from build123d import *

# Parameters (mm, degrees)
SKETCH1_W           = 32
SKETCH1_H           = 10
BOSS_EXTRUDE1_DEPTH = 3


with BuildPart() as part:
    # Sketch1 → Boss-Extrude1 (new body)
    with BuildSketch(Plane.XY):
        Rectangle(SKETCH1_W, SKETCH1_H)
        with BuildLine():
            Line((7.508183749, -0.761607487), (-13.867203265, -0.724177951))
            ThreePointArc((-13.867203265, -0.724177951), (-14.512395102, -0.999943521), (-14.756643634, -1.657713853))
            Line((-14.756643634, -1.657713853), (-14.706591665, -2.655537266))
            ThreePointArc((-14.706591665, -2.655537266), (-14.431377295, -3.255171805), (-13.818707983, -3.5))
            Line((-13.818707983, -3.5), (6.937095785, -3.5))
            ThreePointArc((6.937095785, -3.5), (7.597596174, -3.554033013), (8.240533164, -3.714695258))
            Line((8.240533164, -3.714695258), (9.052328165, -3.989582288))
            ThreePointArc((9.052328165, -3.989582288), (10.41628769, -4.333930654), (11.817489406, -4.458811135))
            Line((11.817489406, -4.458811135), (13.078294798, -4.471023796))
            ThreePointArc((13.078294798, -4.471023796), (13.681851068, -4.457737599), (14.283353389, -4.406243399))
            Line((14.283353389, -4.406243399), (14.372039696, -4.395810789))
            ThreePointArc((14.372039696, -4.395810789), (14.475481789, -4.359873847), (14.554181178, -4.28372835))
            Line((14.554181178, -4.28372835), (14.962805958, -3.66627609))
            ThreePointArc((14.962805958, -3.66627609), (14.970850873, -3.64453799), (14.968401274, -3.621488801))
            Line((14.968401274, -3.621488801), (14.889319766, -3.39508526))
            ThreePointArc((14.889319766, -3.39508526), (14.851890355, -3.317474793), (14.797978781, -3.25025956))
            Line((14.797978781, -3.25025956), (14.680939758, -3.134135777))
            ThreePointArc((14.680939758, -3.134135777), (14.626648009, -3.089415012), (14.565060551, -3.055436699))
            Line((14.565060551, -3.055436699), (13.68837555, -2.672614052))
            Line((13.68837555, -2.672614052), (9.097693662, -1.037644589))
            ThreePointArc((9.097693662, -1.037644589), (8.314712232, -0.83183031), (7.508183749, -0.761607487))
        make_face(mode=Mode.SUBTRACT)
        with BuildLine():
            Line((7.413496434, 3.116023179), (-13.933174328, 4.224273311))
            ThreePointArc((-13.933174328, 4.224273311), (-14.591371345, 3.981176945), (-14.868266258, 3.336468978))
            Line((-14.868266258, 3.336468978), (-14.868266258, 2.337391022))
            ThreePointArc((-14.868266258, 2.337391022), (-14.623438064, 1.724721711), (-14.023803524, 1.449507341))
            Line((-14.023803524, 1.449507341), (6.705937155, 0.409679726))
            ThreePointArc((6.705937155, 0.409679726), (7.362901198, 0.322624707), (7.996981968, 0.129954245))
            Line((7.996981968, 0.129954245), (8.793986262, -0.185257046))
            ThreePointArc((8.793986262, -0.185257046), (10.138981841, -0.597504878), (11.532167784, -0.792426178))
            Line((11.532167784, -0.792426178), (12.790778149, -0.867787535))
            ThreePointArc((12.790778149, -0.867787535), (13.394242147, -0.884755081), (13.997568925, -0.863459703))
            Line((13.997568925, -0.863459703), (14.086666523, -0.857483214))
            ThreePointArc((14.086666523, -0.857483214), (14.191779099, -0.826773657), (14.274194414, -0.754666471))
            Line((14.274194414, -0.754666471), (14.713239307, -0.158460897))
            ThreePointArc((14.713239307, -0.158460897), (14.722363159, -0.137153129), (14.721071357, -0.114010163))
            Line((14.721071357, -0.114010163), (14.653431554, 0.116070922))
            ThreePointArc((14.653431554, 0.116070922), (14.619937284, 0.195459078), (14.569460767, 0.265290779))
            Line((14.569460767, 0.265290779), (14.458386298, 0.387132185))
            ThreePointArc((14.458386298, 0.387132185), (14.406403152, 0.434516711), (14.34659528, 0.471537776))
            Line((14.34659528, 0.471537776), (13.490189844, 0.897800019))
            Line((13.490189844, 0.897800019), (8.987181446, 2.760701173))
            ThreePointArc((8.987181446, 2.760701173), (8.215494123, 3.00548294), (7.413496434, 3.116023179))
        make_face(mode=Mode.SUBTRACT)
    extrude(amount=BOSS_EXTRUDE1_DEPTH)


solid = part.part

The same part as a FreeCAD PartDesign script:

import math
import FreeCAD as App
import Part
import Sketcher
Q = App.Units.Quantity

doc = App.newDocument("Part")
params = doc.addObject("Spreadsheet::Sheet", "Params")
for row, (alias, value) in enumerate([
    ("sketch1_radius", "0.01 in"),
    ("sketch1_radius2", "0.35 in"),
    ("sketch1_radius3", "0.16 in"),
    ("sketch1_radius4", "0.01 in"),
    ("sketch1_radius5", "0.35 in"),
    ("pad1_length", "3 mm"),
], start=1):
    params.set(f"A{row}", alias)
    params.set(f"B{row}", "=" + value)
    params.setAlias(f"B{row}", alias)

body = doc.addObject("PartDesign::Body", "Body")

sketch1 = body.newObject("Sketcher::SketchObject", "Sketch")
sketch1.AttachmentSupport = (doc.getObject("XY_Plane"), [""])
sketch1.MapMode = "FlatFace"
sketch1.addGeometry([
    Part.LineSegment(App.Vector(-16, 5, 0), App.Vector(-16, -5, 0)),
    Part.LineSegment(App.Vector(-16, -5, 0), App.Vector(16, -5, 0)),
    Part.LineSegment(App.Vector(16, -5, 0), App.Vector(16, 5, 0)),
    Part.LineSegment(App.Vector(16, 5, 0), App.Vector(-16, 5, 0)),
    Part.LineSegment(App.Vector(-13.867203, -0.724178, 0), App.Vector(7.508184, -0.761607, 0)),
    Part.ArcOfCircle(Part.Circle(App.Vector(7.499844, -5.5241, 0), App.Vector(0, 0, 1), 4.7625), math.radians(70.396664), math.radians(89.899672)),
    Part.LineSegment(App.Vector(9.097694, -1.037645, 0), App.Vector(13.688376, -2.672614, 0)),
    Part.LineSegment(App.Vector(13.688376, -2.672614, 0), App.Vector(14.565061, -3.055437, 0)),
    Part.ArcOfCircle(Part.Circle(App.Vector(14.412592, -3.404599, 0), App.Vector(0, 0, 1), 0.381), math.radians(45.224904), math.radians(66.410516)),
    Part.LineSegment(App.Vector(14.68094, -3.134136, 0), App.Vector(14.797979, -3.25026, 0)),
    Part.ArcOfCircle(Part.Circle(App.Vector(14.529631, -3.520723, 0), App.Vector(0, 0, 1), 0.381), math.radians(19.254026), math.radians(45.224904)),
    Part.LineSegment(App.Vector(14.88932, -3.395085, 0), App.Vector(14.968401, -3.621489, 0)),
    Part.ArcOfCircle(Part.Circle(App.Vector(14.920443, -3.63824, 0), App.Vector(0, 0, 1), 0.0508), math.radians(-33.496259), math.radians(19.254024)),
    Part.LineSegment(App.Vector(14.962806, -3.666276, 0), App.Vector(14.554181, -4.283728, 0)),
    Part.ArcOfCircle(Part.Circle(App.Vector(14.342365, -4.14355, 0), App.Vector(0, 0, 1), 0.254), math.radians(-83.290847), math.radians(-33.49626)),
    Part.LineSegment(App.Vector(14.37204, -4.395811, 0), App.Vector(14.283353, -4.406243, 0)),
    Part.ArcOfCircle(Part.Circle(App.Vector(13.170553, 5.053529, 0), App.Vector(0, 0, 1), 9.525), math.radians(-90.554972), math.radians(-83.290847)),
    Part.LineSegment(App.Vector(13.078295, -4.471024, 0), App.Vector(11.817489, -4.458811, 0)),
    Part.ArcOfCircle(Part.Circle(App.Vector(11.903597, 4.430772, 0), App.Vector(0, 0, 1), 8.89), math.radians(-108.706939), math.radians(-90.554972)),
    Part.LineSegment(App.Vector(9.052328, -3.989582, 0), App.Vector(8.240533, -3.714695, 0)),
    Part.ArcOfCircle(Part.Circle(App.Vector(6.937096, -7.564, 0), App.Vector(0, 0, 1), 4.064), math.radians(71.293061), math.radians(90)),
    Part.LineSegment(App.Vector(6.937096, -3.5, 0), App.Vector(-13.818708, -3.5, 0)),
    Part.ArcOfCircle(Part.Circle(App.Vector(-13.818708, -2.611, 0), App.Vector(0, 0, 1), 0.889), math.radians(-177.128385), math.radians(-90)),
    Part.LineSegment(App.Vector(-14.706592, -2.655537, 0), App.Vector(-14.756644, -1.657714, 0)),
    Part.ArcOfCircle(Part.Circle(App.Vector(-13.86876, -1.613177, 0), App.Vector(0, 0, 1), 0.889), math.radians(89.899672), math.radians(182.871615)),
    Part.LineSegment(App.Vector(-13.933174, 4.224273, 0), App.Vector(7.413496, 3.116023, 0)),
    Part.ArcOfCircle(Part.Circle(App.Vector(7.166575, -1.640071, 0), App.Vector(0, 0, 1), 4.7625), math.radians(67.525049), math.radians(87.028057)),
    Part.LineSegment(App.Vector(8.987181, 2.760701, 0), App.Vector(13.49019, 0.8978, 0)),
    Part.LineSegment(App.Vector(13.49019, 0.8978, 0), App.Vector(14.346595, 0.471538, 0)),
    Part.ArcOfCircle(Part.Circle(App.Vector(14.176825, 0.130452, 0), App.Vector(0, 0, 1), 0.381), math.radians(42.353288), math.radians(63.538901)),
    Part.LineSegment(App.Vector(14.458386, 0.387132, 0), App.Vector(14.569461, 0.265291, 0)),
    Part.ArcOfCircle(Part.Circle(App.Vector(14.2879, 0.008611, 0), App.Vector(0, 0, 1), 0.381), math.radians(16.382411), math.radians(42.353288)),
    Part.LineSegment(App.Vector(14.653432, 0.116071, 0), App.Vector(14.721071, -0.11401, 0)),
    Part.ArcOfCircle(Part.Circle(App.Vector(14.672334, -0.128338, 0), App.Vector(0, 0, 1), 0.0508), math.radians(-36.367876), math.radians(16.382412)),
    Part.LineSegment(App.Vector(14.713239, -0.158461, 0), App.Vector(14.274194, -0.754666, 0)),
    Part.ArcOfCircle(Part.Circle(App.Vector(14.069667, -0.604053, 0), App.Vector(0, 0, 1), 0.254), math.radians(-86.162463), math.radians(-36.367875)),
    Part.LineSegment(App.Vector(14.086667, -0.857483, 0), App.Vector(13.997569, -0.86346, 0)),
    Part.ArcOfCircle(Part.Circle(App.Vector(13.360084, 8.640184, 0), App.Vector(0, 0, 1), 9.525), math.radians(-93.426588), math.radians(-86.162462)),
    Part.LineSegment(App.Vector(12.790778, -0.867788, 0), App.Vector(11.532168, -0.792426, 0)),
    Part.ArcOfCircle(Part.Circle(App.Vector(12.063519, 8.08168, 0), App.Vector(0, 0, 1), 8.89), math.radians(-111.578554), math.radians(-93.426588)),
    Part.LineSegment(App.Vector(8.793986, -0.185257, 0), App.Vector(7.996982, 0.129954, 0)),
    Part.ArcOfCircle(Part.Circle(App.Vector(6.502338, -3.649217, 0), App.Vector(0, 0, 1), 4.064), math.radians(68.421446), math.radians(87.128385)),
    Part.LineSegment(App.Vector(6.705937, 0.40968, 0), App.Vector(-14.023804, 1.449507, 0)),
    Part.ArcOfCircle(Part.Circle(App.Vector(-13.979266, 2.337391, 0), App.Vector(0, 0, 1), 0.889), math.radians(180), math.radians(267.128385)),
    Part.LineSegment(App.Vector(-14.868266, 2.337391, 0), App.Vector(-14.868266, 3.336469, 0)),
    Part.ArcOfCircle(Part.Circle(App.Vector(-13.979266, 3.336469, 0), App.Vector(0, 0, 1), 0.889), math.radians(87.028057), math.radians(180)),
], False)
sketch1.addConstraint([
    Sketcher.Constraint("Coincident", 0, 2, 1, 1),
    Sketcher.Constraint("Coincident", 1, 2, 2, 1),
    Sketcher.Constraint("Coincident", 2, 2, 3, 1),
    Sketcher.Constraint("Coincident", 3, 2, 0, 1),
    Sketcher.Constraint("Coincident", 4, 2, 5, 2),
    Sketcher.Constraint("Coincident", 5, 1, 6, 1),
    Sketcher.Constraint("Coincident", 6, 2, 7, 1),
    Sketcher.Constraint("Coincident", 7, 2, 8, 2),
    Sketcher.Constraint("Coincident", 8, 1, 9, 1),
    Sketcher.Constraint("Coincident", 9, 2, 10, 2),
    Sketcher.Constraint("Coincident", 10, 1, 11, 1),
    Sketcher.Constraint("Coincident", 11, 2, 12, 2),
    Sketcher.Constraint("Coincident", 12, 1, 13, 1),
    Sketcher.Constraint("Coincident", 13, 2, 14, 2),
    Sketcher.Constraint("Coincident", 14, 1, 15, 1),
    Sketcher.Constraint("Coincident", 15, 2, 16, 2),
    Sketcher.Constraint("Coincident", 16, 1, 17, 1),
    Sketcher.Constraint("Coincident", 17, 2, 18, 2),
    Sketcher.Constraint("Coincident", 18, 1, 19, 1),
    Sketcher.Constraint("Coincident", 19, 2, 20, 1),
    Sketcher.Constraint("Coincident", 20, 2, 21, 1),
    Sketcher.Constraint("Coincident", 21, 2, 22, 2),
    Sketcher.Constraint("Coincident", 22, 1, 23, 1),
    Sketcher.Constraint("Coincident", 23, 2, 24, 2),
    Sketcher.Constraint("Coincident", 24, 1, 4, 1),
    Sketcher.Constraint("Coincident", 25, 2, 26, 2),
    Sketcher.Constraint("Coincident", 26, 1, 27, 1),
    Sketcher.Constraint("Coincident", 27, 2, 28, 1),
    Sketcher.Constraint("Coincident", 28, 2, 29, 2),
    Sketcher.Constraint("Coincident", 29, 1, 30, 1),
    Sketcher.Constraint("Coincident", 30, 2, 31, 2),
    Sketcher.Constraint("Coincident", 31, 1, 32, 1),
    Sketcher.Constraint("Coincident", 32, 2, 33, 2),
    Sketcher.Constraint("Coincident", 33, 1, 34, 1),
    Sketcher.Constraint("Coincident", 34, 2, 35, 2),
    Sketcher.Constraint("Coincident", 35, 1, 36, 1),
    Sketcher.Constraint("Coincident", 36, 2, 37, 2),
    Sketcher.Constraint("Coincident", 37, 1, 38, 1),
    Sketcher.Constraint("Coincident", 38, 2, 39, 2),
    Sketcher.Constraint("Coincident", 39, 1, 40, 1),
    Sketcher.Constraint("Coincident", 40, 2, 41, 1),
    Sketcher.Constraint("Coincident", 41, 2, 42, 1),
    Sketcher.Constraint("Coincident", 42, 2, 43, 2),
    Sketcher.Constraint("Coincident", 43, 1, 44, 1),
    Sketcher.Constraint("Coincident", 44, 2, 45, 2),
    Sketcher.Constraint("Coincident", 45, 1, 25, 1),
    Sketcher.Constraint("Vertical", 0),
    Sketcher.Constraint("Horizontal", 1),
    Sketcher.Constraint("Vertical", 2),
    Sketcher.Constraint("Horizontal", 3),
    Sketcher.Constraint("Horizontal", 21),
    Sketcher.Constraint("Vertical", 44),
    Sketcher.Constraint("Radius", 14, Q("0.01 in")),
    Sketcher.Constraint("Radius", 18, Q("0.35 in")),
    Sketcher.Constraint("Radius", 20, Q("0.16 in")),
    Sketcher.Constraint("Radius", 35, Q("0.01 in")),
    Sketcher.Constraint("Radius", 39, Q("0.35 in")),
    Sketcher.Constraint("Radius", 41, Q("0.16 in")),
    Sketcher.Constraint("Radius", 5, Q("0.1875 in")),
    Sketcher.Constraint("Radius", 8, Q("0.015 in")),
    Sketcher.Constraint("Radius", 10, Q("0.015 in")),
    Sketcher.Constraint("Radius", 12, Q("0.002 in")),
    Sketcher.Constraint("Radius", 16, Q("0.375 in")),
    Sketcher.Constraint("Radius", 22, Q("0.035 in")),
    Sketcher.Constraint("Radius", 24, Q("0.035 in")),
    Sketcher.Constraint("Radius", 26, Q("0.1875 in")),
    Sketcher.Constraint("Radius", 29, Q("0.015 in")),
    Sketcher.Constraint("Radius", 31, Q("0.015 in")),
    Sketcher.Constraint("Radius", 33, Q("0.002 in")),
    Sketcher.Constraint("Radius", 37, Q("0.375 in")),
    Sketcher.Constraint("Radius", 43, Q("0.035 in")),
    Sketcher.Constraint("Radius", 45, Q("0.035 in")),
    Sketcher.Constraint("DistanceX", 1, 1, 1, 2, Q("32 mm")),
    Sketcher.Constraint("DistanceY", 0, 2, 0, 1, Q("10 mm")),
    Sketcher.Constraint("DistanceY", 5, 3, -1, 1, Q("5.5241 mm")),
    Sketcher.Constraint("DistanceY", 8, 3, -1, 1, Q("3.404599 mm")),
    Sketcher.Constraint("DistanceY", 20, 3, -1, 1, Q("7.564 mm")),
    Sketcher.Constraint("DistanceX", -1, 1, 31, 3, Q("14.2879 mm")),
    Sketcher.Constraint("DistanceX", 0, 2, -1, 1, Q("16 mm")),
    Sketcher.Constraint("DistanceY", 0, 2, -1, 1, Q("5 mm")),
    Sketcher.Constraint("DistanceX", -1, 1, 11, 2, Q("14.968401 mm")),
    Sketcher.Constraint("DistanceY", -1, 1, 26, 1, Q("2.760701 mm")),
    Sketcher.Constraint("DistanceY", -1, 1, 27, 2, Q("0.8978 mm")),
    Sketcher.Constraint("Distance", 4, Q("21.37542 mm")),
    Sketcher.Constraint("Distance", 6, Q("4.873139 mm")),
    Sketcher.Constraint("Distance", 13, Q("0.74042 mm")),
    Sketcher.Constraint("Distance", 25, Q("21.37542 mm")),
    Sketcher.Constraint("Distance", 27, Q("4.873139 mm")),
    Sketcher.Constraint("Distance", 34, Q("0.74042 mm")),
    Sketcher.Constraint("DistanceX", 21, 2, 21, 1, Q("20.755804 mm")),
    Sketcher.Constraint("DistanceY", 44, 1, 44, 2, Q("0.999078 mm")),
    Sketcher.Constraint("DistanceX", -1, 1, 8, 3, Q("14.412592 mm")),
    Sketcher.Constraint("DistanceX", -1, 1, 10, 3, Q("14.529631 mm")),
    Sketcher.Constraint("DistanceY", 12, 3, -1, 1, Q("3.63824 mm")),
    Sketcher.Constraint("DistanceY", 14, 3, -1, 1, Q("4.14355 mm")),
    Sketcher.Constraint("DistanceY", -1, 1, 16, 3, Q("5.053529 mm")),
    Sketcher.Constraint("DistanceY", -1, 1, 18, 3, Q("4.430772 mm")),
    Sketcher.Constraint("DistanceX", 24, 3, -1, 1, Q("13.86876 mm")),
    Sketcher.Constraint("DistanceY", 26, 3, -1, 1, Q("1.640071 mm")),
    Sketcher.Constraint("DistanceY", -1, 1, 31, 3, Q("0.008611 mm")),
    Sketcher.Constraint("DistanceY", 33, 3, -1, 1, Q("0.128338 mm")),
    Sketcher.Constraint("DistanceX", -1, 1, 39, 3, Q("12.063519 mm")),
    Sketcher.Constraint("DistanceY", -1, 1, 39, 3, Q("8.08168 mm")),
    Sketcher.Constraint("DistanceX", -1, 1, 41, 3, Q("6.502338 mm")),
    Sketcher.Constraint("DistanceY", -1, 1, 43, 3, Q("2.337391 mm")),
    Sketcher.Constraint("DistanceY", -1, 1, 45, 3, Q("3.336469 mm")),
    Sketcher.Constraint("DistanceX", -1, 1, 7, 2, Q("14.565061 mm")),
    Sketcher.Constraint("DistanceX", -1, 1, 8, 1, Q("14.68094 mm")),
    Sketcher.Constraint("DistanceX", -1, 1, 9, 2, Q("14.797979 mm")),
    Sketcher.Constraint("DistanceY", 9, 2, -1, 1, Q("3.25026 mm")),
    Sketcher.Constraint("DistanceX", -1, 1, 10, 1, Q("14.88932 mm")),
    Sketcher.Constraint("DistanceY", 11, 2, -1, 1, Q("3.621489 mm")),
    Sketcher.Constraint("DistanceX", -1, 1, 13, 2, Q("14.554181 mm")),
    Sketcher.Constraint("DistanceY", 13, 2, -1, 1, Q("4.283728 mm")),
    Sketcher.Constraint("DistanceX", -1, 1, 14, 1, Q("14.37204 mm")),
    Sketcher.Constraint("DistanceX", -1, 1, 17, 2, Q("11.817489 mm")),
    Sketcher.Constraint("DistanceY", 17, 2, -1, 1, Q("4.458811 mm")),
    Sketcher.Constraint("DistanceX", -1, 1, 18, 1, Q("9.052328 mm")),
    Sketcher.Constraint("DistanceX", 22, 1, -1, 1, Q("14.706592 mm")),
    Sketcher.Constraint("DistanceX", -1, 1, 26, 1, Q("8.987181 mm")),
    Sketcher.Constraint("DistanceX", -1, 1, 30, 2, Q("14.569461 mm")),
    Sketcher.Constraint("DistanceX", -1, 1, 31, 1, Q("14.653432 mm")),
    Sketcher.Constraint("DistanceX", -1, 1, 32, 2, Q("14.721071 mm")),
    Sketcher.Constraint("DistanceY", 32, 2, -1, 1, Q("0.11401 mm")),
    Sketcher.Constraint("DistanceX", -1, 1, 33, 1, Q("14.713239 mm")),
    Sketcher.Constraint("DistanceX", -1, 1, 36, 2, Q("13.997569 mm")),
    Sketcher.Constraint("DistanceY", 36, 2, -1, 1, Q("0.86346 mm")),
    Sketcher.Constraint("DistanceX", -1, 1, 37, 1, Q("12.790778 mm")),
    Sketcher.Constraint("DistanceX", -1, 1, 40, 2, Q("7.996982 mm")),
    Sketcher.Constraint("DistanceY", -1, 1, 41, 2, Q("0.40968 mm")),
    Sketcher.Constraint("DistanceY", -1, 1, 43, 1, Q("2.337391 mm")),
    Sketcher.Constraint("Distance", 7, Q("0.956624 mm")),
    Sketcher.Constraint("Distance", 15, Q("0.089298 mm")),
    Sketcher.Constraint("Distance", 17, Q("1.260865 mm")),
    Sketcher.Constraint("Distance", 19, Q("0.857073 mm")),
    Sketcher.Constraint("Distance", 23, Q("0.999078 mm")),
    Sketcher.Constraint("Distance", 28, Q("0.956624 mm")),
    Sketcher.Constraint("Distance", 30, Q("0.164872 mm")),
    Sketcher.Constraint("Distance", 36, Q("0.089298 mm")),
    Sketcher.Constraint("Distance", 38, Q("1.260865 mm")),
    Sketcher.Constraint("Distance", 40, Q("0.857073 mm")),
    Sketcher.Constraint("Distance", 42, Q("20.755804 mm")),
    Sketcher.Constraint("DistanceX", -1, 1, 5, 3, Q("7.499844 mm")),
    Sketcher.Constraint("DistanceX", -1, 1, 16, 3, Q("13.170553 mm")),
    Sketcher.Constraint("DistanceX", -1, 1, 20, 3, Q("6.937096 mm")),
    Sketcher.Constraint("DistanceX", 22, 3, -1, 1, Q("13.818708 mm")),
    Sketcher.Constraint("DistanceY", 24, 3, -1, 1, Q("1.613177 mm")),
    Sketcher.Constraint("DistanceX", -1, 1, 29, 3, Q("14.176825 mm")),
    Sketcher.Constraint("DistanceY", -1, 1, 29, 3, Q("0.130452 mm")),
    Sketcher.Constraint("DistanceX", -1, 1, 35, 3, Q("14.069667 mm")),
    Sketcher.Constraint("DistanceY", 35, 3, -1, 1, Q("0.604053 mm")),
    Sketcher.Constraint("DistanceX", -1, 1, 37, 3, Q("13.360084 mm")),
    Sketcher.Constraint("DistanceY", 41, 3, -1, 1, Q("3.649217 mm")),
    Sketcher.Constraint("DistanceX", 43, 3, -1, 1, Q("13.979266 mm")),
    Sketcher.Constraint("DistanceX", -1, 1, 4, 2, Q("7.508184 mm")),
    Sketcher.Constraint("DistanceX", -1, 1, 5, 1, Q("9.097694 mm")),
    Sketcher.Constraint("DistanceX", -1, 1, 20, 2, Q("6.937096 mm")),
    Sketcher.Constraint("DistanceX", -1, 1, 25, 2, Q("7.413496 mm")),
])
sketch1.setExpression("Constraints[52]", "Params.sketch1_radius")
sketch1.setExpression("Constraints[53]", "Params.sketch1_radius2")
sketch1.setExpression("Constraints[54]", "Params.sketch1_radius3")
sketch1.setExpression("Constraints[55]", "Params.sketch1_radius4")
sketch1.setExpression("Constraints[56]", "Params.sketch1_radius5")
pad1 = body.newObject("PartDesign::Pad", "Pad")
pad1.Profile = sketch1
pad1.setExpression("Length", "Params.pad1_length")

doc.recompute()
